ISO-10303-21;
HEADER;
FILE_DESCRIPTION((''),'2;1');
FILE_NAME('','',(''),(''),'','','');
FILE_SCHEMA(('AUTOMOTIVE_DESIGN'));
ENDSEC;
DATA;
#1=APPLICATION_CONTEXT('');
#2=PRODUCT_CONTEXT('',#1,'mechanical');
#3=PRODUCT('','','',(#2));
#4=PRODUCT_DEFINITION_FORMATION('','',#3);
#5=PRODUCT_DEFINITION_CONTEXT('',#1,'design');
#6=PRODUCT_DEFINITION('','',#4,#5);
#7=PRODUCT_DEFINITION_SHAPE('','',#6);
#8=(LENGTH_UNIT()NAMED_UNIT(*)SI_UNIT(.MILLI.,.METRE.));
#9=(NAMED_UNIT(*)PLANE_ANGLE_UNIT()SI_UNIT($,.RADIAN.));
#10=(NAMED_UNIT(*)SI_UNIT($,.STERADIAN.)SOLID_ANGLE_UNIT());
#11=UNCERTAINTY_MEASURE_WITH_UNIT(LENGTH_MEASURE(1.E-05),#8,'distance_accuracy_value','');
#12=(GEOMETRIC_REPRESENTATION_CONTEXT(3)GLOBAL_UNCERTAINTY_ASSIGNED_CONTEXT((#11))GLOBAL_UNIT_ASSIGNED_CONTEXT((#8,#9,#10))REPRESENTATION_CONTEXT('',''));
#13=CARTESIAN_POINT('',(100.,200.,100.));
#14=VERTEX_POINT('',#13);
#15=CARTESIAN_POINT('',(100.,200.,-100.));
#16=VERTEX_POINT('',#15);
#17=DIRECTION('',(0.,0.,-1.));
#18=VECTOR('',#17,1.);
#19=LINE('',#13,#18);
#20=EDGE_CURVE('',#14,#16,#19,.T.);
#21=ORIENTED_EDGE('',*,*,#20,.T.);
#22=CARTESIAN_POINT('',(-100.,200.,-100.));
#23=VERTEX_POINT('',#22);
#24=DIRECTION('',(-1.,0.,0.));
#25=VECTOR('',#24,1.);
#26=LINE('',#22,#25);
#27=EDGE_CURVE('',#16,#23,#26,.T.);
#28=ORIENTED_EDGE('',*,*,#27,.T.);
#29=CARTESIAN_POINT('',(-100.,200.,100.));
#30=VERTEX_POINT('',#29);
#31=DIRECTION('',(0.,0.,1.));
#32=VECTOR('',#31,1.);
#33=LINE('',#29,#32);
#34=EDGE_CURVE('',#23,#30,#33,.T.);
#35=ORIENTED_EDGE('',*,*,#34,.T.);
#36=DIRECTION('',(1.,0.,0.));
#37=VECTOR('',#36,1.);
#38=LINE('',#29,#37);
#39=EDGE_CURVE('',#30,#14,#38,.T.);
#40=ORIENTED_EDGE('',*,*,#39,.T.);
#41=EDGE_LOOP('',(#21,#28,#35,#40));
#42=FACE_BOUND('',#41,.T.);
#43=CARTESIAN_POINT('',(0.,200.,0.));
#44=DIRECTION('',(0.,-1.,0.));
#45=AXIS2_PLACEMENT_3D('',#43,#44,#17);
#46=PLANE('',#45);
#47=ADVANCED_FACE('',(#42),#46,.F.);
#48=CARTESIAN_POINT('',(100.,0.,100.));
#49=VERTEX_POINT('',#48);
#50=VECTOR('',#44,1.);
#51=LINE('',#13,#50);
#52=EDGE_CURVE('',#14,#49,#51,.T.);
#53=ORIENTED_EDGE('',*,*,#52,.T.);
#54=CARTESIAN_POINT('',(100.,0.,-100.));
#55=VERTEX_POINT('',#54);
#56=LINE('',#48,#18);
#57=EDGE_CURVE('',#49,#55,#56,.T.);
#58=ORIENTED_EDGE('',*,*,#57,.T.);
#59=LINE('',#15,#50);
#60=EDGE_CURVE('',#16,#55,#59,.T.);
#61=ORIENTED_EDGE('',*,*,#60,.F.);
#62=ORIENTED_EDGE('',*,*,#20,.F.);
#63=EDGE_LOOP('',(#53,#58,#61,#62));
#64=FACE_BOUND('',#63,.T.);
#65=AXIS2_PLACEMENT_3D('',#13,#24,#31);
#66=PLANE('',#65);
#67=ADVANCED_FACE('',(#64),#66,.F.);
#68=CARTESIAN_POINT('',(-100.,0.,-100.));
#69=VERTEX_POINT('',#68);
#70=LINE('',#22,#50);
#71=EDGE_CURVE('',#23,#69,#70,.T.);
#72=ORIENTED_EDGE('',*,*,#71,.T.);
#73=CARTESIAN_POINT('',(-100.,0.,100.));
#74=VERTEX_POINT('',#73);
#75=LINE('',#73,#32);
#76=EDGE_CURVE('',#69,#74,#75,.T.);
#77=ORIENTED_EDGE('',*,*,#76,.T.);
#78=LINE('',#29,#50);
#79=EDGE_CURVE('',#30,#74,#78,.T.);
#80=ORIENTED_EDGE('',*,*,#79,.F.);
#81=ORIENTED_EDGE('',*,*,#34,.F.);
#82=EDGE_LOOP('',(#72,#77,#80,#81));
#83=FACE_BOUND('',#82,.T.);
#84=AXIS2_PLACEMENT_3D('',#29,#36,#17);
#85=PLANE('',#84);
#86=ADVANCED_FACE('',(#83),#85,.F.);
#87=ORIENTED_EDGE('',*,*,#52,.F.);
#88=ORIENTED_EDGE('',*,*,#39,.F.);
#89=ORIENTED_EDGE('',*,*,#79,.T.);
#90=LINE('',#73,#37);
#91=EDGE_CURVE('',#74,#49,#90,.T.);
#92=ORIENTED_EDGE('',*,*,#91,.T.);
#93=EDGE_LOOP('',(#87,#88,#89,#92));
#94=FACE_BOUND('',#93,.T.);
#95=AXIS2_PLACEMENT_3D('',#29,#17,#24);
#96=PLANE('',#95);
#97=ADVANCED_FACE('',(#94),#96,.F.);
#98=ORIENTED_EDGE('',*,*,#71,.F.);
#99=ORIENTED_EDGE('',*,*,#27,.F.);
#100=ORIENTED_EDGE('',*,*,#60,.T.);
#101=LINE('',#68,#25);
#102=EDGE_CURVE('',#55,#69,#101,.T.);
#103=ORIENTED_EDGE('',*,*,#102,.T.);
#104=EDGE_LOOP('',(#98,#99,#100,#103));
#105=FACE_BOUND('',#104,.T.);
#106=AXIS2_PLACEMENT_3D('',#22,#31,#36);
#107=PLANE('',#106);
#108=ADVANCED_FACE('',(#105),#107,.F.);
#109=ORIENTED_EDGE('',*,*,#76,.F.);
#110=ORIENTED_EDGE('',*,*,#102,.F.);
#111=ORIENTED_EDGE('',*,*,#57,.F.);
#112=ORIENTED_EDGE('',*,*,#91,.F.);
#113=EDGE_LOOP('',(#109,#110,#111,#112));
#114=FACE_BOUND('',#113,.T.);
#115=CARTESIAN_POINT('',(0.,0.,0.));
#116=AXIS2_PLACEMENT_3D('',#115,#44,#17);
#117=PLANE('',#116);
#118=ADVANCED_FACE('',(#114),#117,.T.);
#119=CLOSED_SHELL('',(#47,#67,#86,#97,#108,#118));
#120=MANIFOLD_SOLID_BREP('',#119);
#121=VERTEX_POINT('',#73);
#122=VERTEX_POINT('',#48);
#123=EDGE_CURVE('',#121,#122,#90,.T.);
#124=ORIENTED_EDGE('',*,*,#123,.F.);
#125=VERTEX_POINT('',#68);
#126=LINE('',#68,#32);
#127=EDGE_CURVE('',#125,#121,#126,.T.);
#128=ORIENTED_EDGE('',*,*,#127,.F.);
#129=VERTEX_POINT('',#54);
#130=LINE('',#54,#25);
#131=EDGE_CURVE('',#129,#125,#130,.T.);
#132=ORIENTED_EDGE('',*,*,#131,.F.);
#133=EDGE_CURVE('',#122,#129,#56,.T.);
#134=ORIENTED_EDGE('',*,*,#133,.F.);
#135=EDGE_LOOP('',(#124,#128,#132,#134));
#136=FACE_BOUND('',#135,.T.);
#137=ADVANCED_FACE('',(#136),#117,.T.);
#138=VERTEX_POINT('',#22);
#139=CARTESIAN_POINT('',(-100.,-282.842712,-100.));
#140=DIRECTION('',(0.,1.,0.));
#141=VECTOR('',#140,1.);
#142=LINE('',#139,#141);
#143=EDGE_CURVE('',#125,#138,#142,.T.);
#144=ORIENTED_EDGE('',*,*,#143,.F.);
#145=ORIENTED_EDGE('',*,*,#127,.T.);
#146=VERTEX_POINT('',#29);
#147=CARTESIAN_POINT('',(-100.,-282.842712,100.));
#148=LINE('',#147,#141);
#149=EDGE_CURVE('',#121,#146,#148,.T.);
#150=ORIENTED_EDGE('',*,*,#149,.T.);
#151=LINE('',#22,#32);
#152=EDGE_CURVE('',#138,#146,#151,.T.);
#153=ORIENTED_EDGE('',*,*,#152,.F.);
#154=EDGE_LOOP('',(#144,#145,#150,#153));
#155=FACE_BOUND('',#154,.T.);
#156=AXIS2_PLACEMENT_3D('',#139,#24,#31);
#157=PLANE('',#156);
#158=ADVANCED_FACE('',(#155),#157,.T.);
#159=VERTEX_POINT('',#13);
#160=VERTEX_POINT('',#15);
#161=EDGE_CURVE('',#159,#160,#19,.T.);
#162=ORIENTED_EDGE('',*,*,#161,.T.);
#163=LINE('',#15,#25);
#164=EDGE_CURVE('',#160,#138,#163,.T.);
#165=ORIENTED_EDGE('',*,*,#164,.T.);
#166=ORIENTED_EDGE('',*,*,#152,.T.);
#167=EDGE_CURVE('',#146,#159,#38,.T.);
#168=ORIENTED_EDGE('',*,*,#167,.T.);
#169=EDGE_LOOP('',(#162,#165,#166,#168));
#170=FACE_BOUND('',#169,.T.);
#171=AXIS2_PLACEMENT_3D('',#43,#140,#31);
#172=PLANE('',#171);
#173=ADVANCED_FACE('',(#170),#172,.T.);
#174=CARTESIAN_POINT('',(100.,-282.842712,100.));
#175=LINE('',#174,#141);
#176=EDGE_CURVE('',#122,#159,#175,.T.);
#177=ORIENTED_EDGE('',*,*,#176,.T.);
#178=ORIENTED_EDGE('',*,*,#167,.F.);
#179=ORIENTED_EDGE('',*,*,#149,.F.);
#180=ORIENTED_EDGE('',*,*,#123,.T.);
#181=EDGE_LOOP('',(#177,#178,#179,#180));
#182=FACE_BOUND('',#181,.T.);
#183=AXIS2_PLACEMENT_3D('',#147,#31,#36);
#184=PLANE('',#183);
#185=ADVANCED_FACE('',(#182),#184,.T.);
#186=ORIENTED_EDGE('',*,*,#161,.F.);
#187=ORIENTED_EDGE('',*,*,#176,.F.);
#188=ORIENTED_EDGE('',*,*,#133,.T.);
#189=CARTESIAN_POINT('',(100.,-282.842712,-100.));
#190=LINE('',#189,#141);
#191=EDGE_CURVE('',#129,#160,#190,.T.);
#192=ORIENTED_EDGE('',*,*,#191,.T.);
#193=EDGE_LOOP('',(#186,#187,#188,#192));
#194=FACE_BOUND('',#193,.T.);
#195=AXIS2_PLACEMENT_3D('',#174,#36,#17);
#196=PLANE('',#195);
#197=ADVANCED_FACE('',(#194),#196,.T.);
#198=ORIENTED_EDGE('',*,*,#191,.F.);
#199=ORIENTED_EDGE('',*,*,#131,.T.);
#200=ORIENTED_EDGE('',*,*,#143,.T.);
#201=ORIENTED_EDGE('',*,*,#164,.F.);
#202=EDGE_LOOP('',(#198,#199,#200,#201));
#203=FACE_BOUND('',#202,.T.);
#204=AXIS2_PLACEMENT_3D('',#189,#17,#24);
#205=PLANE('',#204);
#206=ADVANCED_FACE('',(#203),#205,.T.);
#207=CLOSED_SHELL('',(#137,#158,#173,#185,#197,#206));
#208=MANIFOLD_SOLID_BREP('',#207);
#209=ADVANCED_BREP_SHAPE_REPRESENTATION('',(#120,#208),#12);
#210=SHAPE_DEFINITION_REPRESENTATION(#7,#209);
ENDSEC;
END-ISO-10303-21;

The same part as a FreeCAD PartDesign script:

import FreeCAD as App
import Part
import Sketcher
from FreeCAD import Vector
Q = App.Units.Quantity


def add_polygon(sketch, points):
    """Adds a closed chain of lines whose ends are joined by coincident constraints."""
    first, n = sketch.GeometryCount, len(points)
    for a, b in zip(points, points[1:] + points[:1]):
        sketch.addGeometry(Part.LineSegment(App.Vector(*a, 0), App.Vector(*b, 0)), False)
    for i in range(n):
        sketch.addConstraint(Sketcher.Constraint("Coincident", first + i, 2, first + (i + 1) % n, 1))

doc = App.newDocument("Part")
body = doc.addObject("PartDesign::Body", "Body")

# Sketch on XZ plane
sketch1 = body.newObject("Sketcher::SketchObject", "Sketch")
sketch1.AttachmentSupport = (doc.getObject("XZ_Plane"), [""])
sketch1.MapMode = "FlatFace"
add_polygon(sketch1, [(-100, -100), (-100, 100), (100, 100), (100, -100)])  # lines 0-3
sketch1.addConstraint(Sketcher.Constraint("Vertical", 0))
sketch1.addConstraint(Sketcher.Constraint("Horizontal", 1))
sketch1.addConstraint(Sketcher.Constraint("Vertical", 2))
sketch1.addConstraint(Sketcher.Constraint("Horizontal", 3))
sketch1.addConstraint(Sketcher.Constraint("Symmetric", 0, 2, 2, 2, -1, 1))
sketch1.addConstraint(Sketcher.Constraint("Equal", 3, 0))
sketch1.addConstraint(Sketcher.Constraint("DistanceX", 1, 1, 1, 2, Q("200 mm")))
pad1 = body.newObject("PartDesign::Pad", "Pad")
pad1.Profile = sketch1
pad1.Length = 200
pad1.Reversed = True
body2 = doc.addObject("PartDesign::Body", "Body001")

# Sketch on XZ plane
sketch2 = body2.newObject("Sketcher::SketchObject", "Sketch001")
sketch2.AttachmentSupport = (doc.getObject("XZ_Plane001"), [""])
sketch2.MapMode = "FlatFace"
sketch2.AttachmentOffset = App.Placement(Vector(0, 0, -200), App.Rotation())
add_polygon(sketch2, [(-100, -100), (-100, 100), (100, 100), (100, -100)])  # lines 0-3
sketch2.addConstraint(Sketcher.Constraint("Vertical", 0))
sketch2.addConstraint(Sketcher.Constraint("Horizontal", 1))
sketch2.addConstraint(Sketcher.Constraint("Vertical", 2))
sketch2.addConstraint(Sketcher.Constraint("Horizontal", 3))
sketch2.addConstraint(Sketcher.Constraint("Symmetric", 0, 2, 2, 2, -1, 1))
sketch2.addConstraint(Sketcher.Constraint("Equal", 3, 0))
sketch2.addConstraint(Sketcher.Constraint("DistanceX", 1, 1, 1, 2, Q("200 mm")))
pad2 = body2.newObject("PartDesign::Pad", "Pad001")
pad2.Profile = sketch2
pad2.Length = 200

doc.recompute()
